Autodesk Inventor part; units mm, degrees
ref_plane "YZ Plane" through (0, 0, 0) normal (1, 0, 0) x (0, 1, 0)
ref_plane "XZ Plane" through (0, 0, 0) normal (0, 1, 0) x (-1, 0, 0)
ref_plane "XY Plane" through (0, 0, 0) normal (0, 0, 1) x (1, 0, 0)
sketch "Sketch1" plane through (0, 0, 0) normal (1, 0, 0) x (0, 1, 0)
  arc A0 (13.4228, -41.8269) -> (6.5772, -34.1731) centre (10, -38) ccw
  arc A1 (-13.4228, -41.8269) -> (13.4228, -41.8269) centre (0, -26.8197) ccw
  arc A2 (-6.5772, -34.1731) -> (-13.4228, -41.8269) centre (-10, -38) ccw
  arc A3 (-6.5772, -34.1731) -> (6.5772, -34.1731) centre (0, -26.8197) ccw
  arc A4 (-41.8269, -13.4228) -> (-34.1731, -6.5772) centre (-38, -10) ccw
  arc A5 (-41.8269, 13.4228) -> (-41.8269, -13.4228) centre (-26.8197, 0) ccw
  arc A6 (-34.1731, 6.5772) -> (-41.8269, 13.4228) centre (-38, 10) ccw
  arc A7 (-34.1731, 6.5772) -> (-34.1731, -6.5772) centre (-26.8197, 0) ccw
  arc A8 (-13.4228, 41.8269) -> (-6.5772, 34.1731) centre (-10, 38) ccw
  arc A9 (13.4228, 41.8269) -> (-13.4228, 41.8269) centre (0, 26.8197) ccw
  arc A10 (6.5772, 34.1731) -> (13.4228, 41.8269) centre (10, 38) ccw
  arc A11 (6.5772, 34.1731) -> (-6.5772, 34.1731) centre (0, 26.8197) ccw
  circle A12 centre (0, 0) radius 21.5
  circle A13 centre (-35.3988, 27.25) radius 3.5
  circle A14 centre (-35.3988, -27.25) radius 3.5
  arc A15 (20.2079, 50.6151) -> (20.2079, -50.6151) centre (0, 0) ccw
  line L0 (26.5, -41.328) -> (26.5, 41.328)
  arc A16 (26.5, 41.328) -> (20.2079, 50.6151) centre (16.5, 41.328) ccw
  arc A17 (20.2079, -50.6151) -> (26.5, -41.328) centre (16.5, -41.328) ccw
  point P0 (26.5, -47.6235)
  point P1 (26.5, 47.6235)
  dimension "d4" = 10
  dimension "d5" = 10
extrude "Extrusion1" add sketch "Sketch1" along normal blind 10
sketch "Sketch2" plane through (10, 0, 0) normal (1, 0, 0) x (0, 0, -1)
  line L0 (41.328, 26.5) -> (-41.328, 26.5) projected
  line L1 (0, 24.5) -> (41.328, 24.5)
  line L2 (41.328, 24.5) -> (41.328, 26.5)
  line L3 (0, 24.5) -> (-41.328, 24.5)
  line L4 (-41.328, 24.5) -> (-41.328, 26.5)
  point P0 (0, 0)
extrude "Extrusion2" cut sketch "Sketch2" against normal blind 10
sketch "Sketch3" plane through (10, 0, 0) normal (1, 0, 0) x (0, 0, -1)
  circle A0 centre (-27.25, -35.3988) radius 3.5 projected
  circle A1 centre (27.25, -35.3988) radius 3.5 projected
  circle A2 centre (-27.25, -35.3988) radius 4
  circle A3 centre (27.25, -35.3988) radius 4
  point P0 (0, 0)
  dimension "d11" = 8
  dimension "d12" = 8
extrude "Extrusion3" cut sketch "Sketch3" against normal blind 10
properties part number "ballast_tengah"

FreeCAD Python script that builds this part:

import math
import FreeCAD as App
import Part
import Sketcher
Q = App.Units.Quantity


def add_polygon(sketch, points):
    """Adds a closed chain of lines whose ends are joined by coincident constraints."""
    first, n = sketch.GeometryCount, len(points)
    for a, b in zip(points, points[1:] + points[:1]):
        sketch.addGeometry(Part.LineSegment(App.Vector(*a, 0), App.Vector(*b, 0)), False)
    for i in range(n):
        sketch.addConstraint(Sketcher.Constraint("Coincident", first + i, 2, first + (i + 1) % n, 1))

doc = App.newDocument("Part")
params = doc.addObject("Spreadsheet::Sheet", "Params")
for row, (alias, value) in enumerate([
    ("sketch1_radius", "10 mm"),
    ("sketch1_diameter", "7 mm"),
    ("sketch1_diameter2", "43 mm"),
    ("sketch1_radius2", "54.5 mm"),
    ("pad1_length", "10 mm"),
    ("sketch2_width", "2 mm"),
    ("pocket1_length", "10 mm"),
    ("sketch3_diameter", "8 mm"),
    ("sketch3_diameter2", "7 mm"),
    ("pocket2_length", "10 mm"),
], start=1):
    params.set(f"A{row}", alias)
    params.set(f"B{row}", "=" + value)
    params.setAlias(f"B{row}", alias)

body = doc.addObject("PartDesign::Body", "Body")

# Sketch on YZ plane
sketch1 = body.newObject("Sketcher::SketchObject", "Sketch")
sketch1.AttachmentSupport = (doc.getObject("YZ_Plane"), [""])
sketch1.MapMode = "FlatFace"
sketch1.addGeometry(Part.ArcOfCircle(Part.Circle(App.Vector(16.5, 41.3, 0), App.Vector(0, 0, 1), 10), math.radians(0), math.radians(68)), False)
sketch1.addGeometry(Part.ArcOfCircle(Part.Circle(App.Vector(0, 0, 0), App.Vector(0, 0, 1), 54.5), math.radians(68), math.radians(292)), False)
sketch1.addGeometry(Part.ArcOfCircle(Part.Circle(App.Vector(16.5, -41.3, 0), App.Vector(0, 0, 1), 10), math.radians(-68), math.radians(0)), False)
sketch1.addGeometry(Part.LineSegment(App.Vector(26.5, -41.3, 0), App.Vector(26.5, 41.3, 0)), False)
sketch1.addGeometry(Part.Circle(App.Vector(-35.4, -27.2, 0), App.Vector(0, 0, 1), 3.5), False)
sketch1.addGeometry(Part.ArcOfCircle(Part.Circle(App.Vector(-38, -10, 0), App.Vector(0, 0, 1), 5.1), math.radians(-138), math.radians(42)), False)
sketch1.addGeometry(Part.ArcOfCircle(Part.Circle(App.Vector(-26.8, 0, 0), App.Vector(0, 0, 1), 20.1), math.radians(138), math.radians(222)), False)
sketch1.addGeometry(Part.ArcOfCircle(Part.Circle(App.Vector(-38, 10, 0), App.Vector(0, 0, 1), 5.1), math.radians(-42), math.radians(138)), False)
sketch1.addGeometry(Part.ArcOfCircle(Part.Circle(App.Vector(-26.8, 0, 0), App.Vector(0, 0, 1), 9.9), math.radians(138), math.radians(222)), False)
sketch1.addGeometry(Part.ArcOfCircle(Part.Circle(App.Vector(10, -38, 0), App.Vector(0, 0, 1), 5.1), math.radians(-48), math.radians(132)), False)
sketch1.addGeometry(Part.ArcOfCircle(Part.Circle(App.Vector(0, -26.8, 0), App.Vector(0, 0, 1), 20.1), math.radians(-132), math.radians(-48)), False)
sketch1.addGeometry(Part.ArcOfCircle(Part.Circle(App.Vector(-10, -38, 0), App.Vector(0, 0, 1), 5.1), math.radians(48), math.radians(228)), False)
sketch1.addGeometry(Part.ArcOfCircle(Part.Circle(App.Vector(0, -26.8, 0), App.Vector(0, 0, 1), 9.9), math.radians(-132), math.radians(-48)), False)
sketch1.addGeometry(Part.Circle(App.Vector(0, 0, 0), App.Vector(0, 0, 1), 21.5), False)
sketch1.addGeometry(Part.Circle(App.Vector(-35.4, 27.2, 0), App.Vector(0, 0, 1), 3.5), False)
sketch1.addGeometry(Part.ArcOfCircle(Part.Circle(App.Vector(-10, 38, 0), App.Vector(0, 0, 1), 5.1), math.radians(132), math.radians(312)), False)
sketch1.addGeometry(Part.ArcOfCircle(Part.Circle(App.Vector(0, 26.8, 0), App.Vector(0, 0, 1), 20.1), math.radians(48), math.radians(132)), False)
sketch1.addGeometry(Part.ArcOfCircle(Part.Circle(App.Vector(10, 38, 0), App.Vector(0, 0, 1), 5.1), math.radians(-132), math.radians(48)), False)
sketch1.addGeometry(Part.ArcOfCircle(Part.Circle(App.Vector(0, 26.8, 0), App.Vector(0, 0, 1), 9.9), math.radians(48), math.radians(132)), False)
sketch1.addConstraint(Sketcher.Constraint("Tangent", 0, 2, 1, 1))
sketch1.addConstraint(Sketcher.Constraint("Tangent", 1, 2, 2, 1))
sketch1.addConstraint(Sketcher.Constraint("Tangent", 2, 2, 3, 1))
sketch1.addConstraint(Sketcher.Constraint("Tangent", 3, 2, 0, 1))
sketch1.addConstraint(Sketcher.Constraint("Tangent", 5, 1, 6, 2))
sketch1.addConstraint(Sketcher.Constraint("Tangent", 6, 1, 7, 2))
sketch1.addConstraint(Sketcher.Constraint("Tangent", 7, 1, 8, 1))
sketch1.addConstraint(Sketcher.Constraint("Tangent", 8, 2, 5, 2))
sketch1.addConstraint(Sketcher.Constraint("Tangent", 9, 1, 10, 2))
sketch1.addConstraint(Sketcher.Constraint("Tangent", 10, 1, 11, 2))
sketch1.addConstraint(Sketcher.Constraint("Tangent", 11, 1, 12, 1))
sketch1.addConstraint(Sketcher.Constraint("Tangent", 12, 2, 9, 2))
sketch1.addConstraint(Sketcher.Constraint("Tangent", 15, 1, 16, 2))
sketch1.addConstraint(Sketcher.Constraint("Tangent", 16, 1, 17, 2))
sketch1.addConstraint(Sketcher.Constraint("Tangent", 17, 1, 18, 1))
sketch1.addConstraint(Sketcher.Constraint("Tangent", 18, 2, 15, 2))
sketch1.addConstraint(Sketcher.Constraint("Vertical", 3))
sketch1.addConstraint(Sketcher.Constraint("Coincident", 1, 3, -1, 1))
sketch1.addConstraint(Sketcher.Constraint("Coincident", 13, 3, -1, 1))
sketch1.addConstraint(Sketcher.Constraint("Coincident", 8, 3, 6, 3))
sketch1.addConstraint(Sketcher.Constraint("Coincident", 12, 3, 10, 3))
sketch1.addConstraint(Sketcher.Constraint("Coincident", 18, 3, 16, 3))
sketch1.addConstraint(Sketcher.Constraint("Equal", 0, 2))
sketch1.addConstraint(Sketcher.Constraint("Equal", 7, 9))
sketch1.addConstraint(Sketcher.Constraint("Equal", 6, 10))
sketch1.addConstraint(Sketcher.Constraint("Equal", 4, 14))
sketch1.addConstraint(Sketcher.Constraint("Equal", 11, 15))
sketch1.addConstraint(Sketcher.Constraint("Equal", 10, 16))
sketch1.addConstraint(Sketcher.Constraint("Symmetric", 9, 3, 15, 3, -1, 1))
sketch1.addConstraint(Sketcher.Constraint("Symmetric", 11, 3, 17, 3, -1, 1))
sketch1.addConstraint(Sketcher.Constraint("Symmetric", 9, 3, 11, 3, -2))
sketch1.addConstraint(Sketcher.Constraint("Symmetric", 5, 3, 7, 3, -1))
sketch1.addConstraint(Sketcher.Constraint("Symmetric", 4, 3, 14, 3, -1))
sketch1.addConstraint(Sketcher.Constraint("Radius", 0, Q("10 mm")))
sketch1.addConstraint(Sketcher.Constraint("Diameter", 4, Q("7 mm")))
sketch1.addConstraint(Sketcher.Constraint("Diameter", 13, Q("43 mm")))
sketch1.addConstraint(Sketcher.Constraint("DistanceY", 5, 3, -1, 1, Q("10 mm")))
sketch1.addConstraint(Sketcher.Constraint("DistanceX", -1, 1, 9, 3, Q("10 mm")))
sketch1.addConstraint(Sketcher.Constraint("Radius", 1, Q("54.5 mm")))
sketch1.addConstraint(Sketcher.Constraint("DistanceX", 5, 3, -1, 1, Q("38 mm")))
sketch1.addConstraint(Sketcher.Constraint("DistanceY", 9, 3, -1, 1, Q("38 mm")))
sketch1.addConstraint(Sketcher.Constraint("DistanceX", -1, 1, 0, 3, Q("16.5 mm")))
sketch1.addConstraint(Sketcher.Constraint("Radius", 5, Q("5.1343 mm")))
sketch1.addConstraint(Sketcher.Constraint("Radius", 6, Q("20.1342 mm")))
sketch1.addConstraint(Sketcher.Constraint("DistanceY", 4, 3, -1, 1, Q("27.25 mm")))
sketch1.addConstraint(Sketcher.Constraint("DistanceX", 4, 3, 6, 3, Q("8.579 mm")))
sketch1.setExpression("Constraints[33]", "Params.sketch1_radius")
sketch1.setExpression("Constraints[34]", "Params.sketch1_diameter")
sketch1.setExpression("Constraints[35]", "Params.sketch1_diameter2")
sketch1.setExpression("Constraints[38]", "Params.sketch1_radius2")
pad1 = body.newObject("PartDesign::Pad", "Pad")
pad1.Profile = sketch1
pad1.setExpression("Length", "Params.pad1_length")

# Sketch on YZ plane
sketch2 = body.newObject("Sketcher::SketchObject", "Sketch001")
sketch2.AttachmentSupport = (doc.getObject("YZ_Plane"), [""])
sketch2.MapMode = "FlatFace"
sketch2.AttachmentOffset = App.Placement(App.Vector(0, 0, 10), App.Rotation())
add_polygon(sketch2, [(24.5, -41.3), (26.5, -41.3), (26.5, 41.3), (24.5, 41.3)])  # lines 0-3
sketch2.addConstraint(Sketcher.Constraint("Horizontal", 0))
sketch2.addConstraint(Sketcher.Constraint("Vertical", 1))
sketch2.addConstraint(Sketcher.Constraint("Horizontal", 2))
sketch2.addConstraint(Sketcher.Constraint("Vertical", 3))
sketch2.addConstraint(Sketcher.Constraint("DistanceX", 0, 1, 0, 2, Q("2 mm")))
sketch2.addConstraint(Sketcher.Constraint("DistanceX", -1, 1, 0, 2, Q("26.5 mm")))
sketch2.addConstraint(Sketcher.Constraint("DistanceY", 1, 1, 1, 2, Q("82.656 mm")))
sketch2.addConstraint(Sketcher.Constraint("DistanceY", 0, 2, -1, 1, Q("41.328 mm")))
sketch2.setExpression("Constraints[8]", "Params.sketch2_width")
pocket1 = body.newObject("PartDesign::Pocket", "Pocket")
pocket1.Profile = sketch2
pocket1.setExpression("Length", "Params.pocket1_length")

# Sketch on YZ plane
sketch3 = body.newObject("Sketcher::SketchObject", "Sketch002")
sketch3.AttachmentSupport = (doc.getObject("YZ_Plane"), [""])
sketch3.MapMode = "FlatFace"
sketch3.AttachmentOffset = App.Placement(App.Vector(0, 0, 10), App.Rotation())
sketch3.addGeometry(Part.Circle(App.Vector(-35.4, 27.2, 0), App.Vector(0, 0, 1), 4), False)
sketch3.addGeometry(Part.Circle(App.Vector(-35.4, 27.2, 0), App.Vector(0, 0, 1), 3.5), False)
sketch3.addGeometry(Part.Circle(App.Vector(-35.4, -27.2, 0), App.Vector(0, 0, 1), 4), False)
sketch3.addGeometry(Part.Circle(App.Vector(-35.4, -27.2, 0), App.Vector(0, 0, 1), 3.5), False)
sketch3.addConstraint(Sketcher.Constraint("Coincident", 1, 3, 0, 3))
sketch3.addConstraint(Sketcher.Constraint("Coincident", 3, 3, 2, 3))
sketch3.addConstraint(Sketcher.Constraint("Equal", 0, 2))
sketch3.addConstraint(Sketcher.Constraint("Equal", 1, 3))
sketch3.addConstraint(Sketcher.Constraint("Symmetric", 0, 3, 2, 3, -1))
sketch3.addConstraint(Sketcher.Constraint("Diameter", 0, Q("8 mm")))
sketch3.addConstraint(Sketcher.Constraint("Diameter", 1, Q("7 mm")))
sketch3.addConstraint(Sketcher.Constraint("DistanceY", 2, 3, 0, 3, Q("54.5 mm")))
sketch3.addConstraint(Sketcher.Constraint("DistanceX", 0, 3, -1, 1, Q("35.3988 mm")))
sketch3.setExpression("Constraints[5]", "Params.sketch3_diameter")
sketch3.setExpression("Constraints[6]", "Params.sketch3_diameter2")
pocket2 = body.newObject("PartDesign::Pocket", "Pocket001")
pocket2.Profile = sketch3
pocket2.setExpression("Length", "Params.pocket2_length")

doc.recompute()
